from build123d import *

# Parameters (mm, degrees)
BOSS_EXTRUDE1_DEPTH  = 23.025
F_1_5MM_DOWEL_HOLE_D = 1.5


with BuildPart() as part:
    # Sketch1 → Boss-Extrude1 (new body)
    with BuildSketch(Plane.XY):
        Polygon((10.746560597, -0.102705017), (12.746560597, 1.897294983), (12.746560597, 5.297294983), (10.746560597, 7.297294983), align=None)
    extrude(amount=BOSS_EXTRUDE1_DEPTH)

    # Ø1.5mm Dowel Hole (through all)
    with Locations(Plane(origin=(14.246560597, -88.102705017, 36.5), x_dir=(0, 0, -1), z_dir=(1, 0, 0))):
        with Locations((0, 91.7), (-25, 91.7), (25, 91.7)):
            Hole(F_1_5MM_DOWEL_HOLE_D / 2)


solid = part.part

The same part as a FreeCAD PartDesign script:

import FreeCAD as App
import Part
import Sketcher
Q = App.Units.Quantity

doc = App.newDocument("Part")
body = doc.addObject("PartDesign::Body", "Body")

sketch1 = doc.addObject("Sketcher::SketchObject", "Sketch")
body.addObject(sketch1)
sketch1.AttachmentSupport = (doc.XY_Plane, [""])
sketch1.MapMode = "FlatFace"
sketch1.addGeometry([
    Part.LineSegment(App.Vector(10.7, -0.1, 0), App.Vector(12.7, 1.9, 0)),
    Part.LineSegment(App.Vector(12.7, 1.9, 0), App.Vector(12.7, 5.3, 0)),
    Part.LineSegment(App.Vector(12.7, 5.3, 0), App.Vector(10.7, 7.3, 0)),
    Part.LineSegment(App.Vector(10.7, 7.3, 0), App.Vector(10.7, -0.1, 0)),
], False)
sketch1.addConstraint([
    Sketcher.Constraint("Coincident", 0, 2, 1, 1),
    Sketcher.Constraint("Coincident", 1, 2, 2, 1),
    Sketcher.Constraint("Coincident", 2, 2, 3, 1),
    Sketcher.Constraint("Coincident", 3, 2, 0, 1),
    Sketcher.Constraint("Vertical", 1),
    Sketcher.Constraint("Vertical", 3),
    Sketcher.Constraint("Perpendicular", 0, 2),
    Sketcher.Constraint("Equal", 0, 2),
    Sketcher.Constraint("DistanceY", 1, 1, 1, 2, Q("3.4 mm")),
    Sketcher.Constraint("DistanceY", 3, 2, 3, 1, Q("7.4 mm")),
    Sketcher.Constraint("DistanceX", -1, 1, 0, 2, Q("12.746561 mm")),
    Sketcher.Constraint("DistanceY", -1, 1, 0, 2, Q("1.897295 mm")),
])
pad1 = doc.addObject("PartDesign::Pad", "Pad")
body.addObject(pad1)
pad1.Profile = sketch1
pad1.Length = 23.025

sketch2 = doc.addObject("Sketcher::SketchObject", "Sketch001")
body.addObject(sketch2)
sketch2.AttachmentSupport = (doc.YZ_Plane, [""])
sketch2.MapMode = "FlatFace"
sketch2.AttachmentOffset = App.Placement(App.Vector(0, 0, 14.246561), App.Rotation())
sketch2.addGeometry([
    Part.Circle(App.Vector(3.6, 36.5, 0), App.Vector(0, 0, 1), 0.8),
    Part.Circle(App.Vector(3.6, 61.5, 0), App.Vector(0, 0, 1), 0.8),
    Part.Circle(App.Vector(3.6, 11.5, 0), App.Vector(0, 0, 1), 0.8),
], False)
sketch2.addConstraint([
    Sketcher.Constraint("Equal", 0, 1),
    Sketcher.Constraint("Equal", 1, 2),
    Sketcher.Constraint("Vertical", 0, 3, 1, 3),
    Sketcher.Constraint("Vertical", 1, 3, 2, 3),
    Sketcher.Constraint("Diameter", 0, Q("1.5 mm")),
    Sketcher.Constraint("DistanceY", 0, 3, 1, 3, Q("25 mm")),
    Sketcher.Constraint("DistanceY", 2, 3, 0, 3, Q("25 mm")),
    Sketcher.Constraint("DistanceY", -1, 1, 0, 3, Q("36.5 mm")),
    Sketcher.Constraint("DistanceX", -1, 1, 0, 3, Q("3.597295 mm")),
])
doc.recompute()
hole = doc.addObject("PartDesign::Hole", "Hole")
body.addObject(hole)
hole.Profile = sketch2
hole.ThreadType = "None"
hole.Diameter = 1.5
hole.DepthType = "ThroughAll"

doc.recompute()
